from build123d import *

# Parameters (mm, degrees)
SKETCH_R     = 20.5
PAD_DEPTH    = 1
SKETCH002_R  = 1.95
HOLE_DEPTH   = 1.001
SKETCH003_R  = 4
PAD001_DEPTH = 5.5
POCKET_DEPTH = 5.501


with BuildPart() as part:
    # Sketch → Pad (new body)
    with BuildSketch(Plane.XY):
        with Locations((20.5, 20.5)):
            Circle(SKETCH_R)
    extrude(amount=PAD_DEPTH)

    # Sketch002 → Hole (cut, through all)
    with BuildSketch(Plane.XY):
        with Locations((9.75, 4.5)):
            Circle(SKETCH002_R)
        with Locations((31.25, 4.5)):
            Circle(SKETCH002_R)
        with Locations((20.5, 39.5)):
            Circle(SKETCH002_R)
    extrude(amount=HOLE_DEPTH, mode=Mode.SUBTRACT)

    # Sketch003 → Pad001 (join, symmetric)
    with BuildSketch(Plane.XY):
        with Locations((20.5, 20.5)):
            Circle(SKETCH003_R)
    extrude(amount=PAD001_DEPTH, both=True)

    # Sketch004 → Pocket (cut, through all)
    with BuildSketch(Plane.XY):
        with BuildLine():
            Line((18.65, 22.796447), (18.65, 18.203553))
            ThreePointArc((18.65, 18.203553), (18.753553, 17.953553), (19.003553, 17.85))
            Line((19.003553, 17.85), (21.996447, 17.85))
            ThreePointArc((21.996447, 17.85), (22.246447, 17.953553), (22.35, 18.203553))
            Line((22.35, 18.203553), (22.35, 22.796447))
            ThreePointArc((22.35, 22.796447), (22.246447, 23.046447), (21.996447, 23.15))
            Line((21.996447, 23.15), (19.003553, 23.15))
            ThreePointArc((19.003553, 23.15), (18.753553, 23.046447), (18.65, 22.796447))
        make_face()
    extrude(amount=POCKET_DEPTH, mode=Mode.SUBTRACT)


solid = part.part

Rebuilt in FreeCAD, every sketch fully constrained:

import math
import FreeCAD as App
import Part
import Sketcher

doc = App.newDocument("Part")
body = doc.addObject("PartDesign::Body", "Body")

# Sketch on XY plane
sketch1 = body.newObject("Sketcher::SketchObject", "Sketch")
sketch1.AttachmentSupport = (doc.getObject("XY_Plane"), [""])
sketch1.MapMode = "FlatFace"
sketch1.addGeometry(Part.Circle(App.Vector(20, 20, 0), App.Vector(0, 0, 1), 20), False)
sketch1.addConstraint(Sketcher.Constraint("Diameter", 0, 41.0))
sketch1.addConstraint(Sketcher.Constraint("DistanceX", -1, 1, 0, 3, 20.5))
sketch1.addConstraint(Sketcher.Constraint("DistanceY", -1, 1, 0, 3, 20.5))
pad1 = body.newObject("PartDesign::Pad", "Pad")
pad1.Profile = sketch1
pad1.Length = 1

# Sketch on XY plane
sketch2 = body.newObject("Sketcher::SketchObject", "Sketch001")
sketch2.AttachmentSupport = (doc.getObject("XY_Plane"), [""])
sketch2.MapMode = "FlatFace"
sketch2.addGeometry(Part.Circle(App.Vector(9.8, 4.5, 0), App.Vector(0, 0, 1), 1.9), False)
sketch2.addGeometry(Part.Circle(App.Vector(31.2, 4.5, 0), App.Vector(0, 0, 1), 1.9), False)
sketch2.addGeometry(Part.Circle(App.Vector(20.5, 39.5, 0), App.Vector(0, 0, 1), 1.9), False)
sketch2.addConstraint(Sketcher.Constraint("Equal", 0, 1))
sketch2.addConstraint(Sketcher.Constraint("Equal", 1, 2))
sketch2.addConstraint(Sketcher.Constraint("Horizontal", 0, 3, 1, 3))
sketch2.addConstraint(Sketcher.Constraint("Diameter", 0, 3.9))
sketch2.addConstraint(Sketcher.Constraint("DistanceY", 0, 3, 2, 3, 35.0))
sketch2.addConstraint(Sketcher.Constraint("DistanceY", -1, 1, 0, 3, 4.5))
sketch2.addConstraint(Sketcher.Constraint("DistanceX", -1, 1, 2, 3, 20.5))
sketch2.addConstraint(Sketcher.Constraint("DistanceX", 0, 3, 1, 3, 21.5))
sketch2.addConstraint(Sketcher.Constraint("DistanceX", -1, 1, 0, 3, 9.75))
pocket1 = body.newObject("PartDesign::Pocket", "Pocket")
pocket1.Profile = sketch2
pocket1.Type = "ThroughAll"
pocket1.Reversed = True

# Sketch on XY plane
sketch3 = body.newObject("Sketcher::SketchObject", "Sketch002")
sketch3.AttachmentSupport = (doc.getObject("XY_Plane"), [""])
sketch3.MapMode = "FlatFace"
sketch3.addGeometry(Part.Circle(App.Vector(20.5, 20.5, 0), App.Vector(0, 0, 1), 4), False)
sketch3.addConstraint(Sketcher.Constraint("Diameter", 0, 8.0))
sketch3.addConstraint(Sketcher.Constraint("DistanceX", -1, 1, 0, 3, 20.5))
sketch3.addConstraint(Sketcher.Constraint("DistanceY", -1, 1, 0, 3, 20.5))
pad2 = body.newObject("PartDesign::Pad", "Pad001")
pad2.Profile = sketch3
pad2.Length = 11
pad2.Midplane = True

# Sketch on XY plane
sketch4 = body.newObject("Sketcher::SketchObject", "Sketch003")
sketch4.AttachmentSupport = (doc.getObject("XY_Plane"), [""])
sketch4.MapMode = "FlatFace"
sketch4.addGeometry(Part.LineSegment(App.Vector(18.65, 22.8, 0), App.Vector(18.65, 18.2, 0)), False)
sketch4.addGeometry(Part.ArcOfCircle(Part.Circle(App.Vector(19, 18.2, 0), App.Vector(0, 0, 1), 0.35), math.radians(180), math.radians(270)), False)
sketch4.addGeometry(Part.LineSegment(App.Vector(19, 17.85, 0), App.Vector(22, 17.85, 0)), False)
sketch4.addGeometry(Part.ArcOfCircle(Part.Circle(App.Vector(22, 18.2, 0), App.Vector(0, 0, 1), 0.35), math.radians(-90), math.radians(0)), False)
sketch4.addGeometry(Part.LineSegment(App.Vector(22.35, 18.2, 0), App.Vector(22.35, 22.8, 0)), False)
sketch4.addGeometry(Part.ArcOfCircle(Part.Circle(App.Vector(22, 22.8, 0), App.Vector(0, 0, 1), 0.35), math.radians(0), math.radians(90)), False)
sketch4.addGeometry(Part.LineSegment(App.Vector(22, 23.15, 0), App.Vector(19, 23.15, 0)), False)
sketch4.addGeometry(Part.ArcOfCircle(Part.Circle(App.Vector(19, 22.8, 0), App.Vector(0, 0, 1), 0.35), math.radians(90), math.radians(180)), False)
sketch4.addConstraint(Sketcher.Constraint("Coincident", 0, 2, 1, 1))
sketch4.addConstraint(Sketcher.Constraint("Coincident", 1, 2, 2, 1))
sketch4.addConstraint(Sketcher.Constraint("Coincident", 2, 2, 3, 1))
sketch4.addConstraint(Sketcher.Constraint("Coincident", 3, 2, 4, 1))
sketch4.addConstraint(Sketcher.Constraint("Coincident", 4, 2, 5, 1))
sketch4.addConstraint(Sketcher.Constraint("Coincident", 5, 2, 6, 1))
sketch4.addConstraint(Sketcher.Constraint("Coincident", 6, 2, 7, 1))
sketch4.addConstraint(Sketcher.Constraint("Coincident", 7, 2, 0, 1))
sketch4.addConstraint(Sketcher.Constraint("Vertical", 0))
sketch4.addConstraint(Sketcher.Constraint("Horizontal", 2))
sketch4.addConstraint(Sketcher.Constraint("Vertical", 4))
sketch4.addConstraint(Sketcher.Constraint("Horizontal", 6))
sketch4.addConstraint(Sketcher.Constraint("Equal", 1, 3))
sketch4.addConstraint(Sketcher.Constraint("Equal", 3, 5))
sketch4.addConstraint(Sketcher.Constraint("Equal", 5, 7))
sketch4.addConstraint(Sketcher.Constraint("Horizontal", 3, 3, 0, 2))
sketch4.addConstraint(Sketcher.Constraint("Horizontal", 0, 2, 3, 2))
sketch4.addConstraint(Sketcher.Constraint("Horizontal", 7, 3, 4, 2))
sketch4.addConstraint(Sketcher.Constraint("Horizontal", 4, 2, 7, 2))
sketch4.addConstraint(Sketcher.Constraint("Vertical", 7, 3, 1, 2))
sketch4.addConstraint(Sketcher.Constraint("Vertical", 5, 3, 2, 2))
sketch4.addConstraint(Sketcher.Constraint("Vertical", 2, 2, 5, 2))
sketch4.addConstraint(Sketcher.Constraint("Vertical", 1, 2, 6, 2))
sketch4.addConstraint(Sketcher.Constraint("DistanceX", 0, 2, 3, 2, 3.7))
sketch4.addConstraint(Sketcher.Constraint("DistanceX", -1, 1, 0, 2, 18.65))
sketch4.addConstraint(Sketcher.Constraint("DistanceY", -1, 1, 1, 2, 17.85))
sketch4.addConstraint(Sketcher.Constraint("DistanceY", -1, 1, 5, 2, 23.15))
sketch4.addConstraint(Sketcher.Constraint("Radius", 1, 0.353552))
pocket2 = body.newObject("PartDesign::Pocket", "Pocket001")
pocket2.Profile = sketch4
pocket2.Type = "ThroughAll"
pocket2.Reversed = True

doc.recompute()
